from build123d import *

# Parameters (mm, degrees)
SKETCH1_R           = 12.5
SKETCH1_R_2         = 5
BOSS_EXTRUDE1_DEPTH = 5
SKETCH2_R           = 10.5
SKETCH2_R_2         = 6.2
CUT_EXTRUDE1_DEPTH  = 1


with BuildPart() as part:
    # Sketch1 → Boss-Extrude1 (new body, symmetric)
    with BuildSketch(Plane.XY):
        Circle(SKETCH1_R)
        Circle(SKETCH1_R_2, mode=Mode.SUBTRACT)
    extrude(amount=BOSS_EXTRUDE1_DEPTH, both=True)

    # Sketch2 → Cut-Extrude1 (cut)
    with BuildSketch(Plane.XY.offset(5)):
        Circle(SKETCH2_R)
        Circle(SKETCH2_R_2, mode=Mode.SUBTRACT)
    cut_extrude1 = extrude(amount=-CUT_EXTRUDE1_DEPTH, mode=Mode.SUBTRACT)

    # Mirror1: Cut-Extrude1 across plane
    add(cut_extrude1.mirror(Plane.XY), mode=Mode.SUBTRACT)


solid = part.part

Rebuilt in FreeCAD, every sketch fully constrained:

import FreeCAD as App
import Part
import Sketcher

V = App.Vector
Q = App.Units.Quantity

doc = App.newDocument("Part")
body = doc.addObject("PartDesign::Body", "Body")

# Sketch on XY plane
sketch1 = body.newObject("Sketcher::SketchObject", "Sketch")
sketch1.AttachmentSupport = (doc.getObject("XY_Plane"), [""])
sketch1.MapMode = "FlatFace"
sketch1.addGeometry([
    Part.Circle(V(0, 0, 0), V(0, 0, 1), 12),
    Part.Circle(V(0, 0, 0), V(0, 0, 1), 5),
], False)
sketch1.addConstraint([
    Sketcher.Constraint("Coincident", 0, 3, -1, 1),
    Sketcher.Constraint("Coincident", 1, 3, -1, 1),
    Sketcher.Constraint("Diameter", 0, Q("25 mm")),
    Sketcher.Constraint("Diameter", 1, Q("10 mm")),
])
pad1 = body.newObject("PartDesign::Pad", "Pad")
pad1.Profile = sketch1
pad1.Length = 10
pad1.Midplane = True

# Sketch on XY plane
sketch2 = body.newObject("Sketcher::SketchObject", "Sketch001")
sketch2.AttachmentSupport = (doc.getObject("XY_Plane"), [""])
sketch2.MapMode = "FlatFace"
sketch2.AttachmentOffset = App.Placement(V(0, 0, 5), App.Rotation())
sketch2.addGeometry([
    Part.Circle(V(0, 0, 0), V(0, 0, 1), 10),
    Part.Circle(V(0, 0, 0), V(0, 0, 1), 6),
], False)
sketch2.addConstraint([
    Sketcher.Constraint("Coincident", 0, 3, -1, 1),
    Sketcher.Constraint("Coincident", 1, 3, -1, 1),
    Sketcher.Constraint("Diameter", 0, Q("21 mm")),
    Sketcher.Constraint("Diameter", 1, Q("12.4 mm")),
])
pocket1 = body.newObject("PartDesign::Pocket", "Pocket")
pocket1.Profile = sketch2
pocket1.Length = 1
doc.recompute()

mirrored = body.newObject("PartDesign::Mirrored", "Mirrored")
mirrored.Originals = [pocket1]
mirrored.MirrorPlane = (doc.getObject("XY_Plane"), [""])
body.Tip = mirrored

doc.recompute()
